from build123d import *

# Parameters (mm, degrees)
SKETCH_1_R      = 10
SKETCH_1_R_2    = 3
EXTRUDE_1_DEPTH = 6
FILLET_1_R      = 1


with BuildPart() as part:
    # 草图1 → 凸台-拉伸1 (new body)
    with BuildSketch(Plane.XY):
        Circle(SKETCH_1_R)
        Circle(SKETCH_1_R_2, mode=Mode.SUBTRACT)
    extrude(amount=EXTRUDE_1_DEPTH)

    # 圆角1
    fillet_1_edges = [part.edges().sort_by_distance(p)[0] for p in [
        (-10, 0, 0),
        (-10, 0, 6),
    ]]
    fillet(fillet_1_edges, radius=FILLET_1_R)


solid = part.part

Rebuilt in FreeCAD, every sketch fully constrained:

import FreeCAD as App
import Part
import Sketcher
Q = App.Units.Quantity


def edges_at(feature, points):
    """Names of the edges that pass closest to the given points."""
    edges = feature.Shape.Edges
    near = lambda p: min(range(len(edges)), key=lambda i: edges[i].distToShape(Part.Vertex(*p))[0])
    return sorted({f"Edge{near(p) + 1}" for p in points})

doc = App.newDocument("Part")
body = doc.addObject("PartDesign::Body", "Body")

sketch1 = body.newObject("Sketcher::SketchObject", "Sketch")
sketch1.AttachmentSupport = (doc.getObject("XY_Plane"), [""])
sketch1.MapMode = "FlatFace"
sketch1.addGeometry([
    Part.Circle(App.Vector(0, 0, 0), App.Vector(0, 0, 1), 10),
    Part.Circle(App.Vector(0, 0, 0), App.Vector(0, 0, 1), 3),
], False)
sketch1.addConstraint([
    Sketcher.Constraint("Coincident", 0, 3, -1, 1),
    Sketcher.Constraint("Coincident", 1, 3, -1, 1),
    Sketcher.Constraint("Diameter", 0, Q("20 mm")),
    Sketcher.Constraint("Diameter", 1, Q("6 mm")),
])
pad1 = body.newObject("PartDesign::Pad", "Pad")
pad1.Profile = sketch1
pad1.Length = 6
doc.recompute()

fillet = body.newObject("PartDesign::Fillet", "Fillet")
fillet.Base = (pad1, edges_at(pad1, [(-10, 0, 0), (-10, 0, 6)]))
fillet.Radius = 1

doc.recompute()
